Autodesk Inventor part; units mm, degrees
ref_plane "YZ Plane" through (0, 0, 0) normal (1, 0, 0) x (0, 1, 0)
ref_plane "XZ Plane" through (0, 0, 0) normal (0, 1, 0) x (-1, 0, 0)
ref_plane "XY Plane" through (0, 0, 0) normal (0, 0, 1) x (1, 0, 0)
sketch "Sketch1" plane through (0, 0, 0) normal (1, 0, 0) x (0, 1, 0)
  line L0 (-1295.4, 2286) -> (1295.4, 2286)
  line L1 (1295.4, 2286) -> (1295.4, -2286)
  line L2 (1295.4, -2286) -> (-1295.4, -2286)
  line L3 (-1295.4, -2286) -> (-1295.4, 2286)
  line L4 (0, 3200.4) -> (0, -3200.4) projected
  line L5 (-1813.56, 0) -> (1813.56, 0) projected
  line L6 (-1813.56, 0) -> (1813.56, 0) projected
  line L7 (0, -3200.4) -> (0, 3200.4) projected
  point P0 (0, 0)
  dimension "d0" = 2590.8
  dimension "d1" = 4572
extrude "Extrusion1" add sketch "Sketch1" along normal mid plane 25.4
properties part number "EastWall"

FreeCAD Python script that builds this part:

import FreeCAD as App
import Part
import Sketcher
from FreeCAD import Vector
Q = App.Units.Quantity


def add_polygon(sketch, points):
    """Adds a closed chain of lines whose ends are joined by coincident constraints."""
    first, n = sketch.GeometryCount, len(points)
    for a, b in zip(points, points[1:] + points[:1]):
        sketch.addGeometry(Part.LineSegment(App.Vector(*a, 0), App.Vector(*b, 0)), False)
    for i in range(n):
        sketch.addConstraint(Sketcher.Constraint("Coincident", first + i, 2, first + (i + 1) % n, 1))

doc = App.newDocument("Part")
body = doc.addObject("PartDesign::Body", "Body")

# Sketch on YZ plane
sketch1 = body.newObject("Sketcher::SketchObject", "Sketch")
sketch1.AttachmentSupport = (doc.getObject("YZ_Plane"), [""])
sketch1.MapMode = "FlatFace"
add_polygon(sketch1, [(-1295, 2286), (-1295, -2286), (1295, -2286), (1295, 2286)])  # lines 0-3
sketch1.addConstraint([
    Sketcher.Constraint("Vertical", 0),
    Sketcher.Constraint("Horizontal", 1),
    Sketcher.Constraint("Vertical", 2),
    Sketcher.Constraint("Horizontal", 3),
    Sketcher.Constraint("Symmetric", 0, 2, 2, 2, -1, 1),
    Sketcher.Constraint("DistanceX", 1, 1, 1, 2, Q("102 in")),
    Sketcher.Constraint("DistanceY", 0, 2, 0, 1, Q("180 in")),
])
pad1 = body.newObject("PartDesign::Pad", "Pad")
pad1.Profile = sketch1
pad1.Length = Q("1 in")
pad1.Midplane = True

doc.recompute()
